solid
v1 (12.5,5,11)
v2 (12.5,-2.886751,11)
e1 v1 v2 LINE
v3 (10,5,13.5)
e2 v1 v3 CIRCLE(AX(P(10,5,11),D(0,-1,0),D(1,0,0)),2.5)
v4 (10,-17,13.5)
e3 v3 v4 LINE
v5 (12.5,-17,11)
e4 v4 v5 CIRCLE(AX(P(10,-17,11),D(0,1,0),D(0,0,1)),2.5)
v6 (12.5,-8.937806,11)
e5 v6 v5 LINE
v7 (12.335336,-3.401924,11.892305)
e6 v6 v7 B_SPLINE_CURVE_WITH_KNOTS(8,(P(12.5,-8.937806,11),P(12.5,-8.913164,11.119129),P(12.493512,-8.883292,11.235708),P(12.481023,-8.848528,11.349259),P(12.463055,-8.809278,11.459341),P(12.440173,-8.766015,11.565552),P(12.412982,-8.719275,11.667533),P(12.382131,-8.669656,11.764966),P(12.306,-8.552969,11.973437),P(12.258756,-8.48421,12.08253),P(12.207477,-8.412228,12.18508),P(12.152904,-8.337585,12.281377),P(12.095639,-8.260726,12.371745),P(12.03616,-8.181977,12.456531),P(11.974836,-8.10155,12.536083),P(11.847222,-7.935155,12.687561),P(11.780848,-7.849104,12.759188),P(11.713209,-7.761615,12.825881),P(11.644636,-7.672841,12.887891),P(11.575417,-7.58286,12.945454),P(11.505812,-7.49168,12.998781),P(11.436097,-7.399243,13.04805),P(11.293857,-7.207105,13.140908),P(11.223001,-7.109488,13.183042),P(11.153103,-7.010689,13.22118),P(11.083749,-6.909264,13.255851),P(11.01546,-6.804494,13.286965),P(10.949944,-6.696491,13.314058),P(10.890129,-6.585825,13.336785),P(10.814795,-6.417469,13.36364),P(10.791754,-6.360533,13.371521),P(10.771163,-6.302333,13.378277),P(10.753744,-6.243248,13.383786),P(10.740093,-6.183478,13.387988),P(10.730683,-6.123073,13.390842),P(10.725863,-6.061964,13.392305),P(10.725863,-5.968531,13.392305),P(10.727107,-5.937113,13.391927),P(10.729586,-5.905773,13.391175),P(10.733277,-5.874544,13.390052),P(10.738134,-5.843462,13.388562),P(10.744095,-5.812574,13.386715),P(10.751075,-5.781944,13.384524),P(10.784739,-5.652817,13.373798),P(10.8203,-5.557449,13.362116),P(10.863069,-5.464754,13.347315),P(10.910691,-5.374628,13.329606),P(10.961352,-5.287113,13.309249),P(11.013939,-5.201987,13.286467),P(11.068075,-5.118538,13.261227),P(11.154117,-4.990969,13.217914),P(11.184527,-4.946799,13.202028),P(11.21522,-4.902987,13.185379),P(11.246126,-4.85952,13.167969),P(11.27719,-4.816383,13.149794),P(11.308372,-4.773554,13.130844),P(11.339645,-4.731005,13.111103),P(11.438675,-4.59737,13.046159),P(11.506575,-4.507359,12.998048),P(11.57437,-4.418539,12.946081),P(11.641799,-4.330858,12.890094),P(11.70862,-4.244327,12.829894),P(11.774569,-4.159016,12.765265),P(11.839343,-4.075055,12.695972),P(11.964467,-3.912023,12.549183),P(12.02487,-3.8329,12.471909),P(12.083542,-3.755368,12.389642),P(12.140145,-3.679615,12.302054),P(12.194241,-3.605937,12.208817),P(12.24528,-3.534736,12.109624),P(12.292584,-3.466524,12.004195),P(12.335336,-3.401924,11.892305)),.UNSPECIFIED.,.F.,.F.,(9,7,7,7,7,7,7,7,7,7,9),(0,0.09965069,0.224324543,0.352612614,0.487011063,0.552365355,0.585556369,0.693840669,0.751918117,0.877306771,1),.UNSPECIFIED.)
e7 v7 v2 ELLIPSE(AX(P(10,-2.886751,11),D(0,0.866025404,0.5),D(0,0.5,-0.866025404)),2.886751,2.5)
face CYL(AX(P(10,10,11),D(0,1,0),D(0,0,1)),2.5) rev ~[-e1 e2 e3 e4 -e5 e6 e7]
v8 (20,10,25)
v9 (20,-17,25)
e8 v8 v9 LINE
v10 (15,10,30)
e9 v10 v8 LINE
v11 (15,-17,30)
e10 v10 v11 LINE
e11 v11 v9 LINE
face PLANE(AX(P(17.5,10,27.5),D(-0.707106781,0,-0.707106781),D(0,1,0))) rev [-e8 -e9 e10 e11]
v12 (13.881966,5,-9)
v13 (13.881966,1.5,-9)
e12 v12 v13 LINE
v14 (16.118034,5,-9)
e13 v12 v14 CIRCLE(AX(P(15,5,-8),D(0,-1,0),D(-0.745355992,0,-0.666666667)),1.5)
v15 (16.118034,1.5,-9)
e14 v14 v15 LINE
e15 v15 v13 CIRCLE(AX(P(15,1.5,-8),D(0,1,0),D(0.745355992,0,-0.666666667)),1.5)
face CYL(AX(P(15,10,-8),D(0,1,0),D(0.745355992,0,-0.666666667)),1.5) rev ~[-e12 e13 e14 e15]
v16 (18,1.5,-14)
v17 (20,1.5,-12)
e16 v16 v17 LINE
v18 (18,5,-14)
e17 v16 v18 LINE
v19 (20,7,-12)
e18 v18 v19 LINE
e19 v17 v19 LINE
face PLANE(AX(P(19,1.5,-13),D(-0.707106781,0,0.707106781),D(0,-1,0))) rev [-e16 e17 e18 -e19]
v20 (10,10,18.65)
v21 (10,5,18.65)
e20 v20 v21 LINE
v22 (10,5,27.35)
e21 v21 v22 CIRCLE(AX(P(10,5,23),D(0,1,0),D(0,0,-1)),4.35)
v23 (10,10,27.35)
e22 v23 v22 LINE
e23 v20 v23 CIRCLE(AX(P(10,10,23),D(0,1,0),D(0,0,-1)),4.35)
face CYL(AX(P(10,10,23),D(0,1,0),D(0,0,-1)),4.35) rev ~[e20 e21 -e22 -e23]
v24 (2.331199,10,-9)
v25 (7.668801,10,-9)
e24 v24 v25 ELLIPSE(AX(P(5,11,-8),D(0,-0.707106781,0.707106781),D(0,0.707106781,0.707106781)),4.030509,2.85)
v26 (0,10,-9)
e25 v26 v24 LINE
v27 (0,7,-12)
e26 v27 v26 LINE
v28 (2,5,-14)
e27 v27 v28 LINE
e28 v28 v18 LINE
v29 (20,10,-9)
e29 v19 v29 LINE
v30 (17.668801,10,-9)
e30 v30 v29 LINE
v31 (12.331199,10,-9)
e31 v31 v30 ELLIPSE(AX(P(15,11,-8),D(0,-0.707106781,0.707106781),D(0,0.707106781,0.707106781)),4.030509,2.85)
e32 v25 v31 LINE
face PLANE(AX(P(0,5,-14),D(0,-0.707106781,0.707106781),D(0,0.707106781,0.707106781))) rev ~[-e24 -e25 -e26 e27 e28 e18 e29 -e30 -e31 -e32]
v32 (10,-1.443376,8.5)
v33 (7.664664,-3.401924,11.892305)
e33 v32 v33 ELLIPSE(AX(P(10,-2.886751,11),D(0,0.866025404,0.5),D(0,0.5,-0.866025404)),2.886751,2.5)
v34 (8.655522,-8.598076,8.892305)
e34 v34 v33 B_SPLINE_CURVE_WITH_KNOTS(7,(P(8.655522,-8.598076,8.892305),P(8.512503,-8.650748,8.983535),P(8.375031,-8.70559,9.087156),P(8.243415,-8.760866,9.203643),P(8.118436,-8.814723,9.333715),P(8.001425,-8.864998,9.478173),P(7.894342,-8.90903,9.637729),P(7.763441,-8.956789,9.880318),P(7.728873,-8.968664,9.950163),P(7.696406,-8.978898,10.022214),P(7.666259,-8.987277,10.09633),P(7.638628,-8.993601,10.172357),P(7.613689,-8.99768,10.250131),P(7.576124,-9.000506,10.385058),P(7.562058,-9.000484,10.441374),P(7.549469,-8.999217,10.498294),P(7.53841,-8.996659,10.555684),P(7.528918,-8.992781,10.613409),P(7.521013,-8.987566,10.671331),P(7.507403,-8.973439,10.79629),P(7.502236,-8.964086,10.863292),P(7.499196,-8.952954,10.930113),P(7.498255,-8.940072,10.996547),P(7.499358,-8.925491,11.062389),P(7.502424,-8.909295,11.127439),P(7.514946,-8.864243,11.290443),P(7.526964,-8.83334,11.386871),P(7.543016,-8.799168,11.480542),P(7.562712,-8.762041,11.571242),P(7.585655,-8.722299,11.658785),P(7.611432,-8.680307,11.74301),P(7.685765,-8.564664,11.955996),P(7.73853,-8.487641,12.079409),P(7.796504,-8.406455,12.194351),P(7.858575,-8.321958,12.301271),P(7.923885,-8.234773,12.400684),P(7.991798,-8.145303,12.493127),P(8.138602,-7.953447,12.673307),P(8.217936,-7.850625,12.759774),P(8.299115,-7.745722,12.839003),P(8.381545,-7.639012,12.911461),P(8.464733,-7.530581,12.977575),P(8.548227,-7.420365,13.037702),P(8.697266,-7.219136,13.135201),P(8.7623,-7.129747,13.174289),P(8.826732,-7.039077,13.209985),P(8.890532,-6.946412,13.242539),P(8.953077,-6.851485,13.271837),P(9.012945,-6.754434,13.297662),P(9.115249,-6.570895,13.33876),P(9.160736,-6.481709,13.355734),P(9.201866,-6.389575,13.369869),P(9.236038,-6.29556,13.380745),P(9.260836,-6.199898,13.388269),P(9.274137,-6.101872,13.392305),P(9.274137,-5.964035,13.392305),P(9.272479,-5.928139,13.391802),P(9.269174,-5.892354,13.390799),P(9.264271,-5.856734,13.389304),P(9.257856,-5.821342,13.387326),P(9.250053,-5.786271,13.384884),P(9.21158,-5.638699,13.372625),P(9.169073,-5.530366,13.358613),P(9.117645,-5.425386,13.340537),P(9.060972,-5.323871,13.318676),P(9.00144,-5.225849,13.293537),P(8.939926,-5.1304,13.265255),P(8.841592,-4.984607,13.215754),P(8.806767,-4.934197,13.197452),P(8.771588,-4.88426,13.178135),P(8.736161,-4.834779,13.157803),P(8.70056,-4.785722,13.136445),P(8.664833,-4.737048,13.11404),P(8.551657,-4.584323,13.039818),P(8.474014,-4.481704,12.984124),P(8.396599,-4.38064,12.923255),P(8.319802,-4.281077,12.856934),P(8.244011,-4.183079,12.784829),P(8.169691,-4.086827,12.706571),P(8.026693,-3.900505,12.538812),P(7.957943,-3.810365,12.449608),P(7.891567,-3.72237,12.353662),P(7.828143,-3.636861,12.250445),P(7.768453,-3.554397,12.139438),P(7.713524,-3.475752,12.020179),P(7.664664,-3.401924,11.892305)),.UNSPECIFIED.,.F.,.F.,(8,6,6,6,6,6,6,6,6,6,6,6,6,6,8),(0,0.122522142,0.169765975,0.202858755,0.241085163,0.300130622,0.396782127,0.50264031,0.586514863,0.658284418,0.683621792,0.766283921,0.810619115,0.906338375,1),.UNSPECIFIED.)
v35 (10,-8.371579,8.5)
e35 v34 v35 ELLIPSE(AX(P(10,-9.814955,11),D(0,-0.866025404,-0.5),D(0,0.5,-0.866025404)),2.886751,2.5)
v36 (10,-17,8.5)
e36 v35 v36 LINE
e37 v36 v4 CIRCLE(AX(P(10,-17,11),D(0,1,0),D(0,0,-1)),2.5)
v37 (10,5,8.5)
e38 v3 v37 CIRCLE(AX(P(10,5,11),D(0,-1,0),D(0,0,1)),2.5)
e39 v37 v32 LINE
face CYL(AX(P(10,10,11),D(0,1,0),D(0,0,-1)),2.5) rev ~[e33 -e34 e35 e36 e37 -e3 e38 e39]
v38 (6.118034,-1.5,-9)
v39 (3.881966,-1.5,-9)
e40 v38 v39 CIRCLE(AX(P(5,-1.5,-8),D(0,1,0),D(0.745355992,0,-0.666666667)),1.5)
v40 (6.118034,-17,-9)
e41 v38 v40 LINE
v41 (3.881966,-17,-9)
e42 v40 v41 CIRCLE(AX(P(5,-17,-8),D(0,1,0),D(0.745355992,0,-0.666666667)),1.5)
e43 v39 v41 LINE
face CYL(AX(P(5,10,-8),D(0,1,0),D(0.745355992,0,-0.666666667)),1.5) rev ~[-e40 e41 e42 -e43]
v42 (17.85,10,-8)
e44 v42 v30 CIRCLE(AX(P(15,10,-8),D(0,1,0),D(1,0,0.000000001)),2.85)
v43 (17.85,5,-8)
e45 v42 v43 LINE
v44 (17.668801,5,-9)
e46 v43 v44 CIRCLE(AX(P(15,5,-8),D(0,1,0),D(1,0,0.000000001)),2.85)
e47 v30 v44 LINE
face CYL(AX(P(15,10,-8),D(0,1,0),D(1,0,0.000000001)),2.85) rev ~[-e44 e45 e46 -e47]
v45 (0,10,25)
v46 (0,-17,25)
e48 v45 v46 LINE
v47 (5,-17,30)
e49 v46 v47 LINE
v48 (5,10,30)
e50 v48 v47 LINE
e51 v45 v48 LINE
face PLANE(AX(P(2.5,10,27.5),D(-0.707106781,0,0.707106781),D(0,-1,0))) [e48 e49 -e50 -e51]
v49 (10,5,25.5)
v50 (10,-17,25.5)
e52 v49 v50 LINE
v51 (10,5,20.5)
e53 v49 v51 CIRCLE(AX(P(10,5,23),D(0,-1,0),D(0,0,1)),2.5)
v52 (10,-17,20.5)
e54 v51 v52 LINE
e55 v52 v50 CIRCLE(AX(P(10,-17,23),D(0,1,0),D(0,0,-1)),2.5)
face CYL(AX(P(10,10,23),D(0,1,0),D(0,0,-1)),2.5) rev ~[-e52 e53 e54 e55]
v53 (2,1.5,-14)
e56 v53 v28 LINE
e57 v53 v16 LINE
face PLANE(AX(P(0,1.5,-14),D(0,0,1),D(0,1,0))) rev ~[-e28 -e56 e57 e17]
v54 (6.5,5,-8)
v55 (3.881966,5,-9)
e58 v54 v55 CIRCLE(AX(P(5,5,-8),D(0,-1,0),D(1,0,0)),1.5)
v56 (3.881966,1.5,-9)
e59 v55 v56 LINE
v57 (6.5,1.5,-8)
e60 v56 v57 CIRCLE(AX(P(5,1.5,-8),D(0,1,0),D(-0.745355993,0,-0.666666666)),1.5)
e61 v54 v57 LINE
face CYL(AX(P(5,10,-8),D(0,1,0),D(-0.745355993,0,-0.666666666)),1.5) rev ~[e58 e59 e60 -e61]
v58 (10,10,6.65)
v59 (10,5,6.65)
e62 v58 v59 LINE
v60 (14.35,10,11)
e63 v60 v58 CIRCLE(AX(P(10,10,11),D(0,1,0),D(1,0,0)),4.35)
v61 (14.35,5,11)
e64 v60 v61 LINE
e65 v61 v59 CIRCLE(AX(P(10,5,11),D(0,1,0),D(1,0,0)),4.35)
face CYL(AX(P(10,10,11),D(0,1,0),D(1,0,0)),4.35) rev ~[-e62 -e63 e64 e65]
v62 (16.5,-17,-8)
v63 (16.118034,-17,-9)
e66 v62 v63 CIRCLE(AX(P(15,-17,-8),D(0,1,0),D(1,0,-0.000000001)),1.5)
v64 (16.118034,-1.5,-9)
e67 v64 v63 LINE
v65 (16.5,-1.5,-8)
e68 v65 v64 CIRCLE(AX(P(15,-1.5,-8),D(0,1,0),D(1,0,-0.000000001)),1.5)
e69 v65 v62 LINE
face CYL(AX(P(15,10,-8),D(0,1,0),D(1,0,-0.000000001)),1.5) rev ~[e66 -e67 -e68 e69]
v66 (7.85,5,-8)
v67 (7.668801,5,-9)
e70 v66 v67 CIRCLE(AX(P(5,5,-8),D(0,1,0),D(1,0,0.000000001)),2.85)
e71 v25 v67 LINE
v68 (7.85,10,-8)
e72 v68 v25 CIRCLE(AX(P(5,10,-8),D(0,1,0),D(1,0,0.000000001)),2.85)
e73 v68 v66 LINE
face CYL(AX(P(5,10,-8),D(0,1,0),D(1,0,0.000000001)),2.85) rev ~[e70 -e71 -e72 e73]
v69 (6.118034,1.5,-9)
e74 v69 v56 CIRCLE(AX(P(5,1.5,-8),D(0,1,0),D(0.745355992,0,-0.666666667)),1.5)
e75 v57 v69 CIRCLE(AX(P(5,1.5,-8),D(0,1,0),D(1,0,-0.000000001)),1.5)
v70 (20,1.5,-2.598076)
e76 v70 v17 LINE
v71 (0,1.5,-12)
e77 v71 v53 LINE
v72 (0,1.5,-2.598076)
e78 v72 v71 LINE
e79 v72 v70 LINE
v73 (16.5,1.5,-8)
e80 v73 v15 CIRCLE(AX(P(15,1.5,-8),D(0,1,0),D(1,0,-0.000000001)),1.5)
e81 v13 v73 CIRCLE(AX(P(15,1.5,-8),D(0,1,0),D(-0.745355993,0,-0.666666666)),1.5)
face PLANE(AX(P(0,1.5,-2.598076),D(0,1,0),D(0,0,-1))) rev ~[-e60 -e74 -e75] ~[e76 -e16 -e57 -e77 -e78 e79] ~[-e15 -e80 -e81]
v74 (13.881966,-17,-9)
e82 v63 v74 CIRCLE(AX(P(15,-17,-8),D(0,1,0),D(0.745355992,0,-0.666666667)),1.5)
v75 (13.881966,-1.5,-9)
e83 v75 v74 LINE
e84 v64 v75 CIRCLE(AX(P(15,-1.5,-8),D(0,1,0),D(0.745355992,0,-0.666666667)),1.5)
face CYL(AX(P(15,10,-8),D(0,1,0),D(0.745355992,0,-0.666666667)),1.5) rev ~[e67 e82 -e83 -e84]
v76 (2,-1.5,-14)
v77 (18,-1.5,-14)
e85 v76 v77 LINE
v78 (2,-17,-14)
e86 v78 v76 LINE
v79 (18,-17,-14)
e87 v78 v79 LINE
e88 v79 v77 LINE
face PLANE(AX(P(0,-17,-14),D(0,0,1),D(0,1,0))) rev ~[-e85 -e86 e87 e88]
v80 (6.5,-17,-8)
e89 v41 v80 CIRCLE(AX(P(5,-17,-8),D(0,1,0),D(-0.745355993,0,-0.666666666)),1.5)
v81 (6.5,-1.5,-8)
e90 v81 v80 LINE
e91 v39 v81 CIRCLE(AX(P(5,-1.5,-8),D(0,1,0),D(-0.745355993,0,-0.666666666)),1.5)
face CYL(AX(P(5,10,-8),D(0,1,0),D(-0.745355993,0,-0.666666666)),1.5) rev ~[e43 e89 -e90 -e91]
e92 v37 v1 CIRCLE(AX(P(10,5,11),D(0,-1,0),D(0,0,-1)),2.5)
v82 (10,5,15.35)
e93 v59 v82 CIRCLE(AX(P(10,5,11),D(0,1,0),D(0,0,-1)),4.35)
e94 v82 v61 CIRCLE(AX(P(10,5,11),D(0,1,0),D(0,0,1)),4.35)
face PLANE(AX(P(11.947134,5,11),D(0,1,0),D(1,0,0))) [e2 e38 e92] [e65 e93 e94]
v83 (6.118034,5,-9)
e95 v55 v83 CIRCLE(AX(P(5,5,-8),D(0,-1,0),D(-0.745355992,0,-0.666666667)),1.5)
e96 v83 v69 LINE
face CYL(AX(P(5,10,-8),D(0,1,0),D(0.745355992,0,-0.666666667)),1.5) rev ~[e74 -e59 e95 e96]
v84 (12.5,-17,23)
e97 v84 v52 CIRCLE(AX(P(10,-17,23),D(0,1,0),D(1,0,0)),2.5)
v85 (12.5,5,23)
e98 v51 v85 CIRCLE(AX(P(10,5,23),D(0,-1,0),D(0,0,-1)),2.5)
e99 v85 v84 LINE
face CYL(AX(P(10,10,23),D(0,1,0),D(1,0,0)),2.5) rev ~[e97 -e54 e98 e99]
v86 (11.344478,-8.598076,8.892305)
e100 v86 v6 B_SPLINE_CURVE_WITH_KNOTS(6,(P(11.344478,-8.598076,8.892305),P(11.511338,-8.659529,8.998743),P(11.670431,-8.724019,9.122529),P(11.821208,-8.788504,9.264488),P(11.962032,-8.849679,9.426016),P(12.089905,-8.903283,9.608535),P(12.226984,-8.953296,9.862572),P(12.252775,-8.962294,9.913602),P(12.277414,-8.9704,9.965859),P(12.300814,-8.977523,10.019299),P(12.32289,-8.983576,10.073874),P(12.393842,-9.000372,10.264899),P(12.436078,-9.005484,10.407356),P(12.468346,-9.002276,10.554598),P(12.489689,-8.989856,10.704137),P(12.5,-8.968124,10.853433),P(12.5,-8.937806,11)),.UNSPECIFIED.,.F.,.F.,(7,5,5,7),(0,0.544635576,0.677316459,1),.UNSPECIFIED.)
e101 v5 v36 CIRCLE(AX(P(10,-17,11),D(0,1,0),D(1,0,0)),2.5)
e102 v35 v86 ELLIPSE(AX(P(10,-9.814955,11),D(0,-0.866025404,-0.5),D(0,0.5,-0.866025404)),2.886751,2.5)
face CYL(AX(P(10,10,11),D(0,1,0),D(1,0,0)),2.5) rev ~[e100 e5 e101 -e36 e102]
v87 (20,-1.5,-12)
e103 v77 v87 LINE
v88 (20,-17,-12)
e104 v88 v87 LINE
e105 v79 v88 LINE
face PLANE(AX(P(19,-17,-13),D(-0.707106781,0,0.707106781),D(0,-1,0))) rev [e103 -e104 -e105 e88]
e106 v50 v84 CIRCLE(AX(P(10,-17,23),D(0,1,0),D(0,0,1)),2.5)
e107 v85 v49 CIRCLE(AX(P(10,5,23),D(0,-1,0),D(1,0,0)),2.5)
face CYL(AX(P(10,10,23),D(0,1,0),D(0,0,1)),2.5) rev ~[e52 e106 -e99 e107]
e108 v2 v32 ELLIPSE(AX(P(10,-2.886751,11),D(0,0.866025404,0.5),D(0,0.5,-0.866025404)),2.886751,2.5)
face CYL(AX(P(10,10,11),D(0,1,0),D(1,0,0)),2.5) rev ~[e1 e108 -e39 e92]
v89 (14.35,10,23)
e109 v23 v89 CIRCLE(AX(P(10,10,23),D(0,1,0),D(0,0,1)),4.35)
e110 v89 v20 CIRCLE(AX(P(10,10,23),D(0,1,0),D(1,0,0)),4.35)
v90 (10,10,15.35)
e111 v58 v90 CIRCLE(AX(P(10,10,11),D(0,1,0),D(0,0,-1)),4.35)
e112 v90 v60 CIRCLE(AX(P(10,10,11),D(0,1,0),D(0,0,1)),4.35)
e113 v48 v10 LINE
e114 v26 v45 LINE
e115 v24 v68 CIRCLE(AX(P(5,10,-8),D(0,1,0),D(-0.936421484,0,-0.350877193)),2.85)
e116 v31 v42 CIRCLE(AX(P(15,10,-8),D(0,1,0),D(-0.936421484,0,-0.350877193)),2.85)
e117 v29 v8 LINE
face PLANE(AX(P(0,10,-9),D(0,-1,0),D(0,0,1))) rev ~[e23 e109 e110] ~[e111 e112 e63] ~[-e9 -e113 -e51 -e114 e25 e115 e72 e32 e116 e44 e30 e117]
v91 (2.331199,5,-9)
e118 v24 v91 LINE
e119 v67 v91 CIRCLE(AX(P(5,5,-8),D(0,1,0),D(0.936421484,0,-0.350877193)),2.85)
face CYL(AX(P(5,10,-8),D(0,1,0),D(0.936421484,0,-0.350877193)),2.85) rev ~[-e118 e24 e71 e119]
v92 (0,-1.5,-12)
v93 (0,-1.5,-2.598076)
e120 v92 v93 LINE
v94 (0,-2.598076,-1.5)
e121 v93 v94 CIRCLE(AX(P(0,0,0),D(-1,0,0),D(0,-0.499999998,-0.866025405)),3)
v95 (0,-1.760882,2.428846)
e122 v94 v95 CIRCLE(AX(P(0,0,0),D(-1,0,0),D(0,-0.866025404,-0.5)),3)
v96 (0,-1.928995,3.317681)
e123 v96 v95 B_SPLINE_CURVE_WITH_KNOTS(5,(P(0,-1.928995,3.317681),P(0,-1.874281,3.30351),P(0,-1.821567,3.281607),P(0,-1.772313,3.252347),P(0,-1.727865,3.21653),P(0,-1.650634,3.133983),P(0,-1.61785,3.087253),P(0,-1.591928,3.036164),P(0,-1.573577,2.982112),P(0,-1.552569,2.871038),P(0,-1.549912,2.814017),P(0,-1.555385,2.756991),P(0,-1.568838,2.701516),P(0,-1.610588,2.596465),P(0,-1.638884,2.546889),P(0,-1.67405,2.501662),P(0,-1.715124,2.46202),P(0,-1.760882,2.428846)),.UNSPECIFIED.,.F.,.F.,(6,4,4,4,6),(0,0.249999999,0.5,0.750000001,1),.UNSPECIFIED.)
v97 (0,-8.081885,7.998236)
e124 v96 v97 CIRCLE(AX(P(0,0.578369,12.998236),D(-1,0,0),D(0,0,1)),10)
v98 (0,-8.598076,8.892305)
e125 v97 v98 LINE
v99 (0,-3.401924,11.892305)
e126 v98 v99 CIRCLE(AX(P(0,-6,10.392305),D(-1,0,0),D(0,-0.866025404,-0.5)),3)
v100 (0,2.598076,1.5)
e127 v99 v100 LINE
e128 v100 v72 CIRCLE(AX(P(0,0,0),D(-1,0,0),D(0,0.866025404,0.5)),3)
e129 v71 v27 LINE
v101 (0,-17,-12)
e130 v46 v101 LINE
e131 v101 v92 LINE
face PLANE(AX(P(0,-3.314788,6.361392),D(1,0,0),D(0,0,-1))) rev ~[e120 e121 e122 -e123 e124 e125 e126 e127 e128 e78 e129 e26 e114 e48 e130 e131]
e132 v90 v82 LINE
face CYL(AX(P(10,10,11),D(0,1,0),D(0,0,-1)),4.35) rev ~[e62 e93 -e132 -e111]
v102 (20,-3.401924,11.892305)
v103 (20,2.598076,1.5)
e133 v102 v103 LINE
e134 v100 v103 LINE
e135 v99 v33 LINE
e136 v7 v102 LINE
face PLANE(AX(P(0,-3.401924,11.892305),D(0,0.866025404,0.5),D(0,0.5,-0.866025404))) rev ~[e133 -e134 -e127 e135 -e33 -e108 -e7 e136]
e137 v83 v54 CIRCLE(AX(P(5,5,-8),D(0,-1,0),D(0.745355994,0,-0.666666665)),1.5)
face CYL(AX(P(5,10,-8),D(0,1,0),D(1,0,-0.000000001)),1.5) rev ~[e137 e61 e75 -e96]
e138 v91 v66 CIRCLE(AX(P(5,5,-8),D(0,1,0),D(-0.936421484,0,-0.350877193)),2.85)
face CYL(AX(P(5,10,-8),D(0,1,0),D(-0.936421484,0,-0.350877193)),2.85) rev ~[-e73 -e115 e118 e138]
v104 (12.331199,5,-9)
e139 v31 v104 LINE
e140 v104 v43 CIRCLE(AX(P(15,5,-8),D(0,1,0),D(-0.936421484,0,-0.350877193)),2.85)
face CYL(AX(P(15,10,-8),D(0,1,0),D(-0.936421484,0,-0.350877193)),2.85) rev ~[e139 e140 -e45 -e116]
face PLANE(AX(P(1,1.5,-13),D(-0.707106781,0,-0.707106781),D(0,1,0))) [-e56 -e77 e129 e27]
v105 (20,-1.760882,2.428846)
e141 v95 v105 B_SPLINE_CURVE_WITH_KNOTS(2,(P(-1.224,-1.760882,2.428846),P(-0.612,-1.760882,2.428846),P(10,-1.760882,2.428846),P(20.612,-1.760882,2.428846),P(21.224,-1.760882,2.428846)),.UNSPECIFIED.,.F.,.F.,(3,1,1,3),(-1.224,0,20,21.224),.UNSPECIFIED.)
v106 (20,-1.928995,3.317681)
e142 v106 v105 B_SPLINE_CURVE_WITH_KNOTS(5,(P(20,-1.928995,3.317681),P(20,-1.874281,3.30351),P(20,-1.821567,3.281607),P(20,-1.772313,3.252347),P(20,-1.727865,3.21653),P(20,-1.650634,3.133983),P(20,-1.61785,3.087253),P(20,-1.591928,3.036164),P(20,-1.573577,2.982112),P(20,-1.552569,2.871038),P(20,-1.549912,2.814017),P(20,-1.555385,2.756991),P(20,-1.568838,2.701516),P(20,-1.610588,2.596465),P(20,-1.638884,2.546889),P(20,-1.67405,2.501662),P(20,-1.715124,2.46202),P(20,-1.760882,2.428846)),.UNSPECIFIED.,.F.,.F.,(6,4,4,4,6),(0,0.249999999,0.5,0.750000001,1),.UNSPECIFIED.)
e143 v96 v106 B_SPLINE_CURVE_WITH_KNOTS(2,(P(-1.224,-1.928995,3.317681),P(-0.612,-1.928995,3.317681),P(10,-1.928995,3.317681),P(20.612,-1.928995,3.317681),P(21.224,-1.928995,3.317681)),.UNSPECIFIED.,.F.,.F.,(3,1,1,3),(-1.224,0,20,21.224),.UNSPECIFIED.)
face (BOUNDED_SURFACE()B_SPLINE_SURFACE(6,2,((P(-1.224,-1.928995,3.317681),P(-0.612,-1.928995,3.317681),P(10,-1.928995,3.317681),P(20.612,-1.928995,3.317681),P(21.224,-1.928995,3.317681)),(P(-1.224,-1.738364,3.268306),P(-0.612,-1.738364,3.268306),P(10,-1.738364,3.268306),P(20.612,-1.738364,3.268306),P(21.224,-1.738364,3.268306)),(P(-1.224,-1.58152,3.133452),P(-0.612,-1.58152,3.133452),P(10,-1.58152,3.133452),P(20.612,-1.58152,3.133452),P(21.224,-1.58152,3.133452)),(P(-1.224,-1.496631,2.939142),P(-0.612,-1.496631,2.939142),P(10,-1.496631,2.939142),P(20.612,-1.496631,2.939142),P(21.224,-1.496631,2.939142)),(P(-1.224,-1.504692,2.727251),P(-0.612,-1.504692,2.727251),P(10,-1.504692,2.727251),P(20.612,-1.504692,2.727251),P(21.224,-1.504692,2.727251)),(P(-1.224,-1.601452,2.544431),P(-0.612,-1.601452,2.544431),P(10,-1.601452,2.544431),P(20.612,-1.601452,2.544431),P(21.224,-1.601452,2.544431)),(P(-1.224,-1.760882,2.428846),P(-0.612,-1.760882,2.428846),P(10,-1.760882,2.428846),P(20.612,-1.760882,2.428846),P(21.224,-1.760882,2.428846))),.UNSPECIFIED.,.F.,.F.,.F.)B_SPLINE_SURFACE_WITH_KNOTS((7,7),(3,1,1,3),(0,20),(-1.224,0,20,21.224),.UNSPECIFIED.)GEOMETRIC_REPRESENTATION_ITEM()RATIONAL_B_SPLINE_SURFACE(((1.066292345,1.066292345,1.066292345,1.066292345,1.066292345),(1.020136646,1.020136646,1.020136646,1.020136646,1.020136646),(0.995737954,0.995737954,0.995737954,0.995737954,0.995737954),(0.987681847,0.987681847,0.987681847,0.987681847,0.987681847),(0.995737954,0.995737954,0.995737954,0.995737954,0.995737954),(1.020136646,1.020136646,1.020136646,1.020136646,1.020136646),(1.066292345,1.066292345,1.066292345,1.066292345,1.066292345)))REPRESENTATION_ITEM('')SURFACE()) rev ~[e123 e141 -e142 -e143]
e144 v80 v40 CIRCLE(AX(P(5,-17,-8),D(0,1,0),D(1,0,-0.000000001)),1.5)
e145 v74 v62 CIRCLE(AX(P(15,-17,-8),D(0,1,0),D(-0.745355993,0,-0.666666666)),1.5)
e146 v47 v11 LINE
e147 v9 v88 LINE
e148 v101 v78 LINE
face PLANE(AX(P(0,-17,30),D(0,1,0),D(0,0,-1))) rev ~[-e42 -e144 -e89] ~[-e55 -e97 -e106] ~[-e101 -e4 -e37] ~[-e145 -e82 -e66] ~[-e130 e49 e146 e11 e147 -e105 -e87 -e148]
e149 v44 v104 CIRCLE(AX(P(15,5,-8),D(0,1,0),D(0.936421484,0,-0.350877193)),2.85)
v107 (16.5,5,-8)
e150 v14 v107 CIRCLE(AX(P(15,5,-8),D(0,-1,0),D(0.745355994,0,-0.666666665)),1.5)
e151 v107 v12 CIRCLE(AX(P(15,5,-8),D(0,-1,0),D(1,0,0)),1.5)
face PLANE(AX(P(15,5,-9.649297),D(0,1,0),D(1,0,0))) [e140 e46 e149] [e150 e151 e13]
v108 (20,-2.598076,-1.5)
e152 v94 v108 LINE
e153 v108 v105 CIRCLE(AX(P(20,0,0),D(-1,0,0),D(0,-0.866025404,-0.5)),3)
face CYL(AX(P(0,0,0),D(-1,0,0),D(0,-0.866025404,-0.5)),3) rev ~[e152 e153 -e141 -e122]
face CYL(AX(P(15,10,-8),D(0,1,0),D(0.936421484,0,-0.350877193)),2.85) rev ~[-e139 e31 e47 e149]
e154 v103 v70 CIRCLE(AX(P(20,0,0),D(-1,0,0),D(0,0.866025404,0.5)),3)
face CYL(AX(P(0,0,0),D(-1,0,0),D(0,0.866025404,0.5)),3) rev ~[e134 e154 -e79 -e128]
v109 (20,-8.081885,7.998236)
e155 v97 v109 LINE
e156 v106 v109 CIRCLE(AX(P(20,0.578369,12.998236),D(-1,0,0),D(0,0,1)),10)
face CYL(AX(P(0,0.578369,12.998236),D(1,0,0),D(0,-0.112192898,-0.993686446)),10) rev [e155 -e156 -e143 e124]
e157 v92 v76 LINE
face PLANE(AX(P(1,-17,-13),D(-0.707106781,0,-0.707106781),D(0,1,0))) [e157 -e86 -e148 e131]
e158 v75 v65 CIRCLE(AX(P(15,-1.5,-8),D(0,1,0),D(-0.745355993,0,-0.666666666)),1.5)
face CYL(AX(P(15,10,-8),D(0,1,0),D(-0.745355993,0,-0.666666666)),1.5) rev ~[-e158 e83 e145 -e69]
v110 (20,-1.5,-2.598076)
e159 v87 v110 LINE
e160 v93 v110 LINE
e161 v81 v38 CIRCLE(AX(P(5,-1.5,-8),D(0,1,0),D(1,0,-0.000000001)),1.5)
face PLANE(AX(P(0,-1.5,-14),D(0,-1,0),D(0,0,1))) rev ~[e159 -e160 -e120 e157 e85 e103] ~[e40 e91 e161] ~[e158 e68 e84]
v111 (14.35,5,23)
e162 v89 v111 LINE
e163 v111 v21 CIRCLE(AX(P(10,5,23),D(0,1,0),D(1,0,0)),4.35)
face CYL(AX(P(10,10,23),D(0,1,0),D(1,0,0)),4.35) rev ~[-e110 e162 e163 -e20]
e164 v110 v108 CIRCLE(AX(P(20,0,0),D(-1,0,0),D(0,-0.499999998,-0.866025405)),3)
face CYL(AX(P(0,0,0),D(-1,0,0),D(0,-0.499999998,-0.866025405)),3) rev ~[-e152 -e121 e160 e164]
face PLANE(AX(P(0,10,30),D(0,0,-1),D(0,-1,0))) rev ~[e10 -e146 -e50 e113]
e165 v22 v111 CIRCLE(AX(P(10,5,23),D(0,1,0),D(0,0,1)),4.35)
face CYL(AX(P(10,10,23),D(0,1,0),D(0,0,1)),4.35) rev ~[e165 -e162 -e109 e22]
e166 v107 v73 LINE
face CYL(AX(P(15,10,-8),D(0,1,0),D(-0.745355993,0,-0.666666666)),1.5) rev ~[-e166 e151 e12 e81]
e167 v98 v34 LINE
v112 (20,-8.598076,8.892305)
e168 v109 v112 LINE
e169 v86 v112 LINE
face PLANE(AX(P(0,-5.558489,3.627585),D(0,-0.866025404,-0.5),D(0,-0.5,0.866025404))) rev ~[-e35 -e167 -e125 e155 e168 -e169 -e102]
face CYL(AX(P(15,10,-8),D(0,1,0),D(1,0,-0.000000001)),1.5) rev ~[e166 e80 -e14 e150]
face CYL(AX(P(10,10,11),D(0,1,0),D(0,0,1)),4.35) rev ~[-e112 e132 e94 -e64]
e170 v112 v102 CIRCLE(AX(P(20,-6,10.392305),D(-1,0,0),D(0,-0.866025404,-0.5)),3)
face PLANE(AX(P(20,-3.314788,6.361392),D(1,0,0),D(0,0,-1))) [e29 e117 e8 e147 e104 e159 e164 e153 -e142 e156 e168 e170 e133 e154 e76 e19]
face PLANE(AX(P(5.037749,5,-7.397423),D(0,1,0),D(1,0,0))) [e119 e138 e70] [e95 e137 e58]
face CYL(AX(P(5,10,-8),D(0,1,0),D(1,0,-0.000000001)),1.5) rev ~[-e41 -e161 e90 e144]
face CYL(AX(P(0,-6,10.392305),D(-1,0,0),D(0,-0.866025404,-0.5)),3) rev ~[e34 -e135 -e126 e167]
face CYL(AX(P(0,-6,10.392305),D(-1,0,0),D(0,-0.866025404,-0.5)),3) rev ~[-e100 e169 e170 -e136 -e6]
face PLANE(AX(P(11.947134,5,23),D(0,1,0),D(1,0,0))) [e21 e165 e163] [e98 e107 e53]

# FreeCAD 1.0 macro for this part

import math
import FreeCAD as App
import Part
import Sketcher
from FreeCAD import Vector
Q = App.Units.Quantity


def edges_at(feature, points):
    """Names of the edges that pass closest to the given points."""
    edges = feature.Shape.Edges
    near = lambda p: min(range(len(edges)), key=lambda i: edges[i].distToShape(Part.Vertex(*p))[0])
    return sorted({f"Edge{near(p) + 1}" for p in points})

doc = App.newDocument("Part")
params = doc.addObject("Spreadsheet::Sheet", "Params")
for row, (alias, value) in enumerate([
    ("sketch1_radius", "3 mm"),
    ("sketch1_width", "27 mm"),
    ("sketch1_height", "39 mm"),
    ("sketch1_height2", "44 mm"),
    ("sketch1_length", "12 mm"),
    ("pad1_length", "20 mm"),
    ("fillet_radius", "10 mm"),
    ("fillet2_radius", "0.5 mm"),
    ("sketch2_radius", "2.5 mm"),
    ("sketch2_radius2", "4.35 mm"),
    ("pocket1_length", "5 mm"),
    ("sketch3_radius", "1.5 mm"),
    ("sketch3_radius2", "2.85 mm"),
    ("pocket2_length", "5 mm"),
    ("sketch4_radius", "1.5 mm"),
    ("sketch4_radius2", "2.5 mm"),
    ("chamfer_size", "5 mm"),
    ("chamfer2_size", "2 mm"),
], start=1):
    params.set(f"A{row}", alias)
    params.set(f"B{row}", "=" + value)
    params.setAlias(f"B{row}", alias)

body = doc.addObject("PartDesign::Body", "Body")

# Sketch on YZ plane
sketch1 = body.newObject("Sketcher::SketchObject", "Sketch")
sketch1.AttachmentSupport = (doc.getObject("YZ_Plane"), [""])
sketch1.MapMode = "FlatFace"
sketch1.addGeometry([
    Part.ArcOfCircle(Part.Circle(Vector(-6, 10.4, 0), Vector(0, 0, 1), 3), math.radians(30), math.radians(210)),  # 0
    Part.LineSegment(Vector(-3.4, 11.9, 0), Vector(2.6, 1.5, 0)),  # 1
    Part.ArcOfCircle(Part.Circle(Vector(0, 0, 0), Vector(0, 0, 1), 3), math.radians(-60), math.radians(30)),  # 2
    Part.LineSegment(Vector(1.5, -2.6, 0), Vector(1.5, -14, 0)),  # 3
    Part.LineSegment(Vector(1.5, -14, 0), Vector(5, -14, 0)),  # 4
    Part.LineSegment(Vector(5, -14, 0), Vector(10, -9, 0)),  # 5
    Part.LineSegment(Vector(10, -9, 0), Vector(10, 30, 0)),  # 6
    Part.LineSegment(Vector(10, 30, 0), Vector(-17, 30, 0)),  # 7
    Part.LineSegment(Vector(-17, 30, 0), Vector(-17, -14, 0)),  # 8
    Part.LineSegment(Vector(-17, -14, 0), Vector(-1.5, -14, 0)),  # 9
    Part.LineSegment(Vector(-1.5, -14, 0), Vector(-1.5, -2.6, 0)),  # 10
    Part.ArcOfCircle(Part.Circle(Vector(0, 0, 0), Vector(0, 0, 1), 3), math.radians(-150), math.radians(-120)),  # 11
    Part.ArcOfCircle(Part.Circle(Vector(0, 0, 0), Vector(0, 0, 1), 3), math.radians(90), math.radians(210)),  # 12
    Part.LineSegment(Vector(0, 3, 0), Vector(-5.6, 3.6, 0)),  # 13
    Part.LineSegment(Vector(-5.6, 3.6, 0), Vector(-8.6, 8.9, 0)),  # 14
], False)
sketch1.addConstraint([
    Sketcher.Constraint("Tangent", 0, 1, 1, 1),
    Sketcher.Constraint("Tangent", 1, 2, 2, 2),
    Sketcher.Constraint("Coincident", 2, 1, 3, 1),
    Sketcher.Constraint("Coincident", 3, 2, 4, 1),
    Sketcher.Constraint("Coincident", 4, 2, 5, 1),
    Sketcher.Constraint("Coincident", 5, 2, 6, 1),
    Sketcher.Constraint("Coincident", 6, 2, 7, 1),
    Sketcher.Constraint("Coincident", 7, 2, 8, 1),
    Sketcher.Constraint("Coincident", 8, 2, 9, 1),
    Sketcher.Constraint("Coincident", 9, 2, 10, 1),
    Sketcher.Constraint("Coincident", 10, 2, 11, 2),
    Sketcher.Constraint("Tangent", 11, 1, 12, 2),
    Sketcher.Constraint("Coincident", 12, 1, 13, 1),
    Sketcher.Constraint("Coincident", 13, 2, 14, 1),
    Sketcher.Constraint("Tangent", 14, 2, 0, 2),
    Sketcher.Constraint("Vertical", 3),
    Sketcher.Constraint("Horizontal", 4),
    Sketcher.Constraint("Vertical", 6),
    Sketcher.Constraint("Horizontal", 7),
    Sketcher.Constraint("Vertical", 8),
    Sketcher.Constraint("Horizontal", 9),
    Sketcher.Constraint("Vertical", 10),
    Sketcher.Constraint("Coincident", 2, 3, -1, 1),
    Sketcher.Constraint("Coincident", 11, 3, -1, 1),
    Sketcher.Constraint("Equal", 0, 2),
    Sketcher.Constraint("Equal", 2, 11),
    Sketcher.Constraint("Equal", 11, 12),
    Sketcher.Constraint("Symmetric", 3, 2, 9, 2, -2),
    Sketcher.Constraint("PointOnObject", 12, 1, -2),
    Sketcher.Constraint("Parallel", 1, 14),
    Sketcher.Constraint("Radius", 0, 3.0),
    Sketcher.Constraint("DistanceX", 7, 2, 7, 1, 27.0),
    Sketcher.Constraint("DistanceY", 6, 1, 6, 2, 39.0),
    Sketcher.Constraint("DistanceY", 8, 2, 8, 1, 44.0),
    Sketcher.Constraint("Angle", 1, Q("-60 deg")),
    Sketcher.Constraint("Angle", 5, Q("45 deg")),
    Sketcher.Constraint("Distance", 1, 12.0),
    Sketcher.Constraint("DistanceX", 4, 1, 4, 2, 3.5),
    Sketcher.Constraint("DistanceX", 9, 1, 9, 2, 15.5),
    Sketcher.Constraint("DistanceY", 3, 2, -1, 1, 14.0),
    Sketcher.Constraint("DistanceX", 14, 2, 11, 1, 6.0),
    Sketcher.Constraint("DistanceX", 13, 2, -1, 1, 5.558489),
])
sketch1.setExpression("Constraints[30]", "Params.sketch1_radius")
sketch1.setExpression("Constraints[31]", "Params.sketch1_width")
sketch1.setExpression("Constraints[32]", "Params.sketch1_height")
sketch1.setExpression("Constraints[33]", "Params.sketch1_height2")
sketch1.setExpression("Constraints[36]", "Params.sketch1_length")
pad1 = body.newObject("PartDesign::Pad", "Pad")
pad1.Profile = sketch1
pad1.setExpression("Length", "Params.pad1_length")
doc.recompute()

fillet = body.newObject("PartDesign::Fillet", "Fillet")
fillet.Base = (pad1, edges_at(pad1, [(10, -5.558, 3.628)]))
fillet.setExpression("Radius", "Params.fillet_radius")
doc.recompute()

fillet2 = body.newObject("PartDesign::Fillet", "Fillet001")
fillet2.Base = (fillet, edges_at(fillet, [(10, 0, 3)]))
fillet2.setExpression("Radius", "Params.fillet2_radius")

# Sketch on XZ plane
sketch2 = body.newObject("Sketcher::SketchObject", "Sketch001")
sketch2.AttachmentSupport = (doc.getObject("XZ_Plane"), [""])
sketch2.MapMode = "FlatFace"
sketch2.AttachmentOffset = App.Placement(Vector(0, 0, -10), App.Rotation())
sketch2.addGeometry([
    Part.ArcOfCircle(Part.Circle(Vector(10, 11, 0), Vector(0, 0, 1), 4.4), math.radians(-90), math.radians(0)),  # 0
    Part.ArcOfCircle(Part.Circle(Vector(10, 11, 0), Vector(0, 0, 1), 4.3), math.radians(90), math.radians(270)),  # 1
    Part.ArcOfCircle(Part.Circle(Vector(10, 11, 0), Vector(0, 0, 1), 4.4), math.radians(0), math.radians(90)),  # 2
    Part.ArcOfCircle(Part.Circle(Vector(10, 11, 0), Vector(0, 0, 1), 2.5), math.radians(0), math.radians(90)),  # 3
    Part.ArcOfCircle(Part.Circle(Vector(10, 11, 0), Vector(0, 0, 1), 2.5), math.radians(90), math.radians(270)),  # 4
    Part.ArcOfCircle(Part.Circle(Vector(10, 11, 0), Vector(0, 0, 1), 2.5), math.radians(-90), math.radians(0)),  # 5
    Part.ArcOfCircle(Part.Circle(Vector(10, 23, 0), Vector(0, 0, 1), 4.4), math.radians(-90), math.radians(0)),  # 6
    Part.ArcOfCircle(Part.Circle(Vector(10, 23, 0), Vector(0, 0, 1), 4.3), math.radians(90), math.radians(270)),  # 7
    Part.ArcOfCircle(Part.Circle(Vector(10, 23, 0), Vector(0, 0, 1), 4.4), math.radians(0), math.radians(90)),  # 8
    Part.ArcOfCircle(Part.Circle(Vector(10, 23, 0), Vector(0, 0, 1), 2.5), math.radians(0), math.radians(90)),  # 9
    Part.ArcOfCircle(Part.Circle(Vector(10, 23, 0), Vector(0, 0, 1), 2.5), math.radians(90), math.radians(270)),  # 10
    Part.ArcOfCircle(Part.Circle(Vector(10, 23, 0), Vector(0, 0, 1), 2.5), math.radians(-90), math.radians(0)),  # 11
], False)
sketch2.addConstraint([
    Sketcher.Constraint("Tangent", 0, 1, 1, 2),
    Sketcher.Constraint("Tangent", 1, 1, 2, 2),
    Sketcher.Constraint("Tangent", 2, 1, 0, 2),
    Sketcher.Constraint("Tangent", 3, 2, 4, 1),
    Sketcher.Constraint("Tangent", 4, 2, 5, 1),
    Sketcher.Constraint("Tangent", 5, 2, 3, 1),
    Sketcher.Constraint("Tangent", 6, 1, 7, 2),
    Sketcher.Constraint("Tangent", 7, 1, 8, 2),
    Sketcher.Constraint("Tangent", 8, 1, 6, 2),
    Sketcher.Constraint("Tangent", 9, 2, 10, 1),
    Sketcher.Constraint("Tangent", 10, 2, 11, 1),
    Sketcher.Constraint("Tangent", 11, 2, 9, 1),
    Sketcher.Constraint("Coincident", 3, 3, 0, 3),
    Sketcher.Constraint("Coincident", 9, 3, 6, 3),
    Sketcher.Constraint("Equal", 2, 6),
    Sketcher.Constraint("Equal", 5, 9),
    Sketcher.Constraint("Horizontal", 5, 3, 2, 1),
    Sketcher.Constraint("Horizontal", 2, 1, 5, 2),
    Sketcher.Constraint("Horizontal", 11, 3, 8, 1),
    Sketcher.Constraint("Horizontal", 8, 1, 11, 2),
    Sketcher.Constraint("Vertical", 5, 3, 6, 3),
    Sketcher.Constraint("Vertical", 11, 3, 0, 1),
    Sketcher.Constraint("Vertical", 0, 1, 1, 1),
    Sketcher.Constraint("Vertical", 1, 1, 3, 2),
    Sketcher.Constraint("Vertical", 3, 2, 4, 2),
    Sketcher.Constraint("Vertical", 4, 2, 6, 1),
    Sketcher.Constraint("Vertical", 6, 1, 7, 1),
    Sketcher.Constraint("Vertical", 7, 1, 9, 2),
    Sketcher.Constraint("Vertical", 9, 2, 10, 2),
    Sketcher.Constraint("Radius", 3, 2.5),
    Sketcher.Constraint("Radius", 0, 4.35),
    Sketcher.Constraint("DistanceX", -1, 1, 0, 3, 10.0),
    Sketcher.Constraint("DistanceY", -1, 1, 0, 3, 11.0),
    Sketcher.Constraint("DistanceY", -1, 1, 6, 3, 23.0),
])
sketch2.setExpression("Constraints[29]", "Params.sketch2_radius")
sketch2.setExpression("Constraints[30]", "Params.sketch2_radius2")
pocket1 = body.newObject("PartDesign::Pocket", "Pocket")
pocket1.Profile = sketch2
pocket1.setExpression("Length", "Params.pocket1_length")
pocket1.Reversed = True

# Sketch on XZ plane
sketch3 = body.newObject("Sketcher::SketchObject", "Sketch002")
sketch3.AttachmentSupport = (doc.getObject("XZ_Plane"), [""])
sketch3.MapMode = "FlatFace"
sketch3.AttachmentOffset = App.Placement(Vector(0, 0, -10), App.Rotation())
sketch3.addGeometry([
    Part.ArcOfCircle(Part.Circle(Vector(15, -8, 0), Vector(0, 0, 1), 2.9), math.radians(-159), math.radians(-21)),  # 0
    Part.ArcOfCircle(Part.Circle(Vector(15, -8, 0), Vector(0, 0, 1), 2.9), math.radians(0), math.radians(201)),  # 1
    Part.ArcOfCircle(Part.Circle(Vector(15, -8, 0), Vector(0, 0, 1), 2.8), math.radians(-21), math.radians(0)),  # 2
    Part.ArcOfCircle(Part.Circle(Vector(15, -8, 0), Vector(0, 0, 1), 1.5), math.radians(-138), math.radians(-42)),  # 3
    Part.ArcOfCircle(Part.Circle(Vector(15, -8, 0), Vector(0, 0, 1), 1.5), math.radians(-42), math.radians(0)),  # 4
    Part.ArcOfCircle(Part.Circle(Vector(15, -8, 0), Vector(0, 0, 1), 1.5), math.radians(0), math.radians(222)),  # 5
    Part.ArcOfCircle(Part.Circle(Vector(5, -8, 0), Vector(0, 0, 1), 2.9), math.radians(0), math.radians(201)),  # 6
    Part.ArcOfCircle(Part.Circle(Vector(5, -8, 0), Vector(0, 0, 1), 2.8), math.radians(-21), math.radians(0)),  # 7
    Part.ArcOfCircle(Part.Circle(Vector(5, -8, 0), Vector(0, 0, 1), 2.9), math.radians(-159), math.radians(-21)),  # 8
    Part.ArcOfCircle(Part.Circle(Vector(5, -8, 0), Vector(0, 0, 1), 1.5), math.radians(0), math.radians(222)),  # 9
    Part.ArcOfCircle(Part.Circle(Vector(5, -8, 0), Vector(0, 0, 1), 1.5), math.radians(-138), math.radians(-42)),  # 10
    Part.ArcOfCircle(Part.Circle(Vector(5, -8, 0), Vector(0, 0, 1), 1.5), math.radians(-42), math.radians(0)),  # 11
], False)
sketch3.addConstraint([
    Sketcher.Constraint("Tangent", 0, 1, 1, 2),
    Sketcher.Constraint("Tangent", 1, 1, 2, 2),
    Sketcher.Constraint("Tangent", 2, 1, 0, 2),
    Sketcher.Constraint("Tangent", 3, 2, 4, 1),
    Sketcher.Constraint("Tangent", 4, 2, 5, 1),
    Sketcher.Constraint("Tangent", 5, 2, 3, 1),
    Sketcher.Constraint("Tangent", 6, 1, 7, 2),
    Sketcher.Constraint("Tangent", 7, 1, 8, 2),
    Sketcher.Constraint("Tangent", 8, 1, 6, 2),
    Sketcher.Constraint("Tangent", 9, 2, 10, 1),
    Sketcher.Constraint("Tangent", 10, 2, 11, 1),
    Sketcher.Constraint("Tangent", 11, 2, 9, 1),
    Sketcher.Constraint("Coincident", 3, 3, 0, 3),
    Sketcher.Constraint("Coincident", 9, 3, 6, 3),
    Sketcher.Constraint("Equal", 2, 6),
    Sketcher.Constraint("Equal", 5, 9),
    Sketcher.Constraint("Horizontal", 5, 3, 6, 3),
    Sketcher.Constraint("Horizontal", 11, 3, 1, 1),
    Sketcher.Constraint("Horizontal", 0, 1, 2, 1),
    Sketcher.Constraint("Horizontal", 2, 1, 3, 2),
    Sketcher.Constraint("Horizontal", 1, 1, 4, 2),
    Sketcher.Constraint("Horizontal", 3, 2, 5, 2),
    Sketcher.Constraint("Horizontal", 4, 2, 6, 1),
    Sketcher.Constraint("Horizontal", 5, 2, 7, 1),
    Sketcher.Constraint("Horizontal", 7, 1, 8, 1),
    Sketcher.Constraint("Horizontal", 8, 1, 9, 2),
    Sketcher.Constraint("Horizontal", 9, 2, 10, 2),
    Sketcher.Constraint("Horizontal", 6, 1, 11, 2),
    Sketcher.Constraint("Radius", 3, 1.5),
    Sketcher.Constraint("Radius", 0, 2.85),
    Sketcher.Constraint("DistanceX", -1, 1, 0, 3, 15.0),
    Sketcher.Constraint("DistanceY", 0, 3, -1, 1, 8.0),
    Sketcher.Constraint("DistanceX", -1, 1, 6, 3, 5.0),
    Sketcher.Constraint("DistanceY", 0, 1, -1, 1, 9.0),
])
sketch3.setExpression("Constraints[28]", "Params.sketch3_radius")
sketch3.setExpression("Constraints[29]", "Params.sketch3_radius2")
pocket2 = body.newObject("PartDesign::Pocket", "Pocket001")
pocket2.Profile = sketch3
pocket2.setExpression("Length", "Params.pocket2_length")
pocket2.Reversed = True

# Sketch on XZ plane
sketch4 = body.newObject("Sketcher::SketchObject", "Sketch003")
sketch4.AttachmentSupport = (doc.getObject("XZ_Plane"), [""])
sketch4.MapMode = "FlatFace"
sketch4.AttachmentOffset = App.Placement(Vector(0, 0, -10), App.Rotation())
sketch4.addGeometry([
    Part.ArcOfCircle(Part.Circle(Vector(15, -8, 0), Vector(0, 0, 1), 1.5), math.radians(0), math.radians(222)),  # 0
    Part.ArcOfCircle(Part.Circle(Vector(15, -8, 0), Vector(0, 0, 1), 1.5), math.radians(-42), math.radians(0)),  # 1
    Part.ArcOfCircle(Part.Circle(Vector(15, -8, 0), Vector(0, 0, 1), 1.5), math.radians(-138), math.radians(-42)),  # 2
    Part.ArcOfCircle(Part.Circle(Vector(5, -8, 0), Vector(0, 0, 1), 1.5), math.radians(-138), math.radians(-42)),  # 3
    Part.ArcOfCircle(Part.Circle(Vector(5, -8, 0), Vector(0, 0, 1), 1.5), math.radians(0), math.radians(222)),  # 4
    Part.ArcOfCircle(Part.Circle(Vector(5, -8, 0), Vector(0, 0, 1), 1.5), math.radians(-42), math.radians(0)),  # 5
    Part.ArcOfCircle(Part.Circle(Vector(10, 11, 0), Vector(0, 0, 1), 2.5), math.radians(-90), math.radians(0)),  # 6
    Part.ArcOfCircle(Part.Circle(Vector(10, 11, 0), Vector(0, 0, 1), 2.5), math.radians(90), math.radians(270)),  # 7
    Part.ArcOfCircle(Part.Circle(Vector(10, 11, 0), Vector(0, 0, 1), 2.5), math.radians(0), math.radians(90)),  # 8
    Part.ArcOfCircle(Part.Circle(Vector(10, 23, 0), Vector(0, 0, 1), 2.5), math.radians(-90), math.radians(0)),  # 9
    Part.ArcOfCircle(Part.Circle(Vector(10, 23, 0), Vector(0, 0, 1), 2.5), math.radians(90), math.radians(270)),  # 10
    Part.ArcOfCircle(Part.Circle(Vector(10, 23, 0), Vector(0, 0, 1), 2.5), math.radians(0), math.radians(90)),  # 11
], False)
sketch4.addConstraint([
    Sketcher.Constraint("Tangent", 0, 1, 1, 2),
    Sketcher.Constraint("Tangent", 1, 1, 2, 2),
    Sketcher.Constraint("Tangent", 2, 1, 0, 2),
    Sketcher.Constraint("Tangent", 3, 1, 4, 2),
    Sketcher.Constraint("Tangent", 4, 1, 5, 2),
    Sketcher.Constraint("Tangent", 5, 1, 3, 2),
    Sketcher.Constraint("Tangent", 6, 1, 7, 2),
    Sketcher.Constraint("Tangent", 7, 1, 8, 2),
    Sketcher.Constraint("Tangent", 8, 1, 6, 2),
    Sketcher.Constraint("Tangent", 9, 1, 10, 2),
    Sketcher.Constraint("Tangent", 10, 1, 11, 2),
    Sketcher.Constraint("Tangent", 11, 1, 9, 2),
    Sketcher.Constraint("Equal", 2, 3),
    Sketcher.Constraint("Equal", 8, 9),
    Sketcher.Constraint("Horizontal", 2, 3, 3, 3),
    Sketcher.Constraint("Horizontal", 5, 3, 0, 1),
    Sketcher.Constraint("Horizontal", 1, 1, 2, 1),
    Sketcher.Constraint("Horizontal", 2, 1, 3, 1),
    Sketcher.Constraint("Horizontal", 0, 1, 4, 1),
    Sketcher.Constraint("Horizontal", 3, 1, 5, 1),
    Sketcher.Constraint("Horizontal", 7, 3, 8, 1),
    Sketcher.Constraint("Horizontal", 10, 3, 11, 1),
    Sketcher.Constraint("Vertical", 8, 3, 9, 3),
    Sketcher.Constraint("Vertical", 11, 3, 6, 1),
    Sketcher.Constraint("Vertical", 6, 1, 7, 1),
    Sketcher.Constraint("Vertical", 7, 1, 9, 1),
    Sketcher.Constraint("Vertical", 9, 1, 10, 1),
    Sketcher.Constraint("Radius", 0, 1.5),
    Sketcher.Constraint("Radius", 6, 2.5),
    Sketcher.Constraint("DistanceX", -1, 1, 0, 3, 15.0),
    Sketcher.Constraint("DistanceY", 0, 3, -1, 1, 8.0),
    Sketcher.Constraint("DistanceX", -1, 1, 3, 3, 5.0),
    Sketcher.Constraint("DistanceX", -1, 1, 6, 3, 10.0),
    Sketcher.Constraint("DistanceY", -1, 1, 6, 3, 11.0),
    Sketcher.Constraint("DistanceY", -1, 1, 9, 3, 23.0),
    Sketcher.Constraint("DistanceY", 1, 1, -1, 1, 9.0),
])
sketch4.setExpression("Constraints[27]", "Params.sketch4_radius")
sketch4.setExpression("Constraints[28]", "Params.sketch4_radius2")
pocket3 = body.newObject("PartDesign::Pocket", "Pocket002")
pocket3.Profile = sketch4
pocket3.Type = "ThroughAll"
pocket3.Reversed = True
doc.recompute()

chamfer = body.newObject("PartDesign::Chamfer", "Chamfer")
chamfer.Base = (pocket3, edges_at(pocket3, [(0, -3.5, 30), (20, -3.5, 30)]))
chamfer.setExpression("Size", "Params.chamfer_size")
doc.recompute()

chamfer2 = body.newObject("PartDesign::Chamfer", "Chamfer001")
chamfer2.Base = (chamfer, edges_at(chamfer, [
    (0, -9.25, -14),
    (0, 3.25, -14),
    (20, 3.25, -14),
    (20, -9.25, -14),
]))
chamfer2.setExpression("Size", "Params.chamfer2_size")

doc.recompute()
